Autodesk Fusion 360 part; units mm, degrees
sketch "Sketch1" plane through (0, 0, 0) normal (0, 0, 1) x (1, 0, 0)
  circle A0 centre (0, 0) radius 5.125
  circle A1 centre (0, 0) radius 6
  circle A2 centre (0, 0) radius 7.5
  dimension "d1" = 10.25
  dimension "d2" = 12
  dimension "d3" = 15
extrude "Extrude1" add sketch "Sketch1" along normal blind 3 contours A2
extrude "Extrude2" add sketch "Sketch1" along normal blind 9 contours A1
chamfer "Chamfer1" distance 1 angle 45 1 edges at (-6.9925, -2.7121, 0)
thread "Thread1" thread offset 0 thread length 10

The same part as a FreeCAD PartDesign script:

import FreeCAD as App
import Part
import Sketcher

V = App.Vector
Q = App.Units.Quantity


def edges_at(feature, points):
    """Names of the edges that pass closest to the given points."""
    edges = feature.Shape.Edges
    near = lambda p: min(range(len(edges)), key=lambda i: edges[i].distToShape(Part.Vertex(*p))[0])
    return sorted({f"Edge{near(p) + 1}" for p in points})

doc = App.newDocument("Part")
body = doc.addObject("PartDesign::Body", "Body")

sketch1 = body.newObject("Sketcher::SketchObject", "Sketch")
sketch1.AttachmentSupport = (doc.getObject("XY_Plane"), [""])
sketch1.MapMode = "FlatFace"
sketch1.addGeometry([
    Part.Circle(V(0, 0, 0), V(0, 0, 1), 8),
    Part.Circle(V(0, 0, 0), V(0, 0, 1), 6),
], False)
sketch1.addConstraint([
    Sketcher.Constraint("Coincident", 0, 3, -1, 1),
    Sketcher.Constraint("Coincident", 1, 3, -1, 1),
    Sketcher.Constraint("Diameter", 0, Q("15 mm")),
    Sketcher.Constraint("Diameter", 1, Q("12 mm")),
])
pad1 = body.newObject("PartDesign::Pad", "Pad")
pad1.Profile = sketch1
pad1.Length = 3

sketch2 = body.newObject("Sketcher::SketchObject", "Sketch001")
sketch2.AttachmentSupport = (doc.getObject("XY_Plane"), [""])
sketch2.MapMode = "FlatFace"
sketch2.addGeometry([
    Part.Circle(V(0, 0, 0), V(0, 0, 1), 6),
    Part.Circle(V(0, 0, 0), V(0, 0, 1), 5),
], False)
sketch2.addConstraint([
    Sketcher.Constraint("Coincident", 0, 3, -1, 1),
    Sketcher.Constraint("Coincident", 1, 3, -1, 1),
    Sketcher.Constraint("Diameter", 0, Q("12 mm")),
    Sketcher.Constraint("Diameter", 1, Q("10.25 mm")),
])
pad2 = body.newObject("PartDesign::Pad", "Pad001")
pad2.Profile = sketch2
pad2.Length = 9
doc.recompute()

chamfer = body.newObject("PartDesign::Chamfer", "Chamfer")
chamfer.Base = (pad2, edges_at(pad2, [(-6.992, -2.712, 0)]))
chamfer.Size = 1

doc.recompute()
